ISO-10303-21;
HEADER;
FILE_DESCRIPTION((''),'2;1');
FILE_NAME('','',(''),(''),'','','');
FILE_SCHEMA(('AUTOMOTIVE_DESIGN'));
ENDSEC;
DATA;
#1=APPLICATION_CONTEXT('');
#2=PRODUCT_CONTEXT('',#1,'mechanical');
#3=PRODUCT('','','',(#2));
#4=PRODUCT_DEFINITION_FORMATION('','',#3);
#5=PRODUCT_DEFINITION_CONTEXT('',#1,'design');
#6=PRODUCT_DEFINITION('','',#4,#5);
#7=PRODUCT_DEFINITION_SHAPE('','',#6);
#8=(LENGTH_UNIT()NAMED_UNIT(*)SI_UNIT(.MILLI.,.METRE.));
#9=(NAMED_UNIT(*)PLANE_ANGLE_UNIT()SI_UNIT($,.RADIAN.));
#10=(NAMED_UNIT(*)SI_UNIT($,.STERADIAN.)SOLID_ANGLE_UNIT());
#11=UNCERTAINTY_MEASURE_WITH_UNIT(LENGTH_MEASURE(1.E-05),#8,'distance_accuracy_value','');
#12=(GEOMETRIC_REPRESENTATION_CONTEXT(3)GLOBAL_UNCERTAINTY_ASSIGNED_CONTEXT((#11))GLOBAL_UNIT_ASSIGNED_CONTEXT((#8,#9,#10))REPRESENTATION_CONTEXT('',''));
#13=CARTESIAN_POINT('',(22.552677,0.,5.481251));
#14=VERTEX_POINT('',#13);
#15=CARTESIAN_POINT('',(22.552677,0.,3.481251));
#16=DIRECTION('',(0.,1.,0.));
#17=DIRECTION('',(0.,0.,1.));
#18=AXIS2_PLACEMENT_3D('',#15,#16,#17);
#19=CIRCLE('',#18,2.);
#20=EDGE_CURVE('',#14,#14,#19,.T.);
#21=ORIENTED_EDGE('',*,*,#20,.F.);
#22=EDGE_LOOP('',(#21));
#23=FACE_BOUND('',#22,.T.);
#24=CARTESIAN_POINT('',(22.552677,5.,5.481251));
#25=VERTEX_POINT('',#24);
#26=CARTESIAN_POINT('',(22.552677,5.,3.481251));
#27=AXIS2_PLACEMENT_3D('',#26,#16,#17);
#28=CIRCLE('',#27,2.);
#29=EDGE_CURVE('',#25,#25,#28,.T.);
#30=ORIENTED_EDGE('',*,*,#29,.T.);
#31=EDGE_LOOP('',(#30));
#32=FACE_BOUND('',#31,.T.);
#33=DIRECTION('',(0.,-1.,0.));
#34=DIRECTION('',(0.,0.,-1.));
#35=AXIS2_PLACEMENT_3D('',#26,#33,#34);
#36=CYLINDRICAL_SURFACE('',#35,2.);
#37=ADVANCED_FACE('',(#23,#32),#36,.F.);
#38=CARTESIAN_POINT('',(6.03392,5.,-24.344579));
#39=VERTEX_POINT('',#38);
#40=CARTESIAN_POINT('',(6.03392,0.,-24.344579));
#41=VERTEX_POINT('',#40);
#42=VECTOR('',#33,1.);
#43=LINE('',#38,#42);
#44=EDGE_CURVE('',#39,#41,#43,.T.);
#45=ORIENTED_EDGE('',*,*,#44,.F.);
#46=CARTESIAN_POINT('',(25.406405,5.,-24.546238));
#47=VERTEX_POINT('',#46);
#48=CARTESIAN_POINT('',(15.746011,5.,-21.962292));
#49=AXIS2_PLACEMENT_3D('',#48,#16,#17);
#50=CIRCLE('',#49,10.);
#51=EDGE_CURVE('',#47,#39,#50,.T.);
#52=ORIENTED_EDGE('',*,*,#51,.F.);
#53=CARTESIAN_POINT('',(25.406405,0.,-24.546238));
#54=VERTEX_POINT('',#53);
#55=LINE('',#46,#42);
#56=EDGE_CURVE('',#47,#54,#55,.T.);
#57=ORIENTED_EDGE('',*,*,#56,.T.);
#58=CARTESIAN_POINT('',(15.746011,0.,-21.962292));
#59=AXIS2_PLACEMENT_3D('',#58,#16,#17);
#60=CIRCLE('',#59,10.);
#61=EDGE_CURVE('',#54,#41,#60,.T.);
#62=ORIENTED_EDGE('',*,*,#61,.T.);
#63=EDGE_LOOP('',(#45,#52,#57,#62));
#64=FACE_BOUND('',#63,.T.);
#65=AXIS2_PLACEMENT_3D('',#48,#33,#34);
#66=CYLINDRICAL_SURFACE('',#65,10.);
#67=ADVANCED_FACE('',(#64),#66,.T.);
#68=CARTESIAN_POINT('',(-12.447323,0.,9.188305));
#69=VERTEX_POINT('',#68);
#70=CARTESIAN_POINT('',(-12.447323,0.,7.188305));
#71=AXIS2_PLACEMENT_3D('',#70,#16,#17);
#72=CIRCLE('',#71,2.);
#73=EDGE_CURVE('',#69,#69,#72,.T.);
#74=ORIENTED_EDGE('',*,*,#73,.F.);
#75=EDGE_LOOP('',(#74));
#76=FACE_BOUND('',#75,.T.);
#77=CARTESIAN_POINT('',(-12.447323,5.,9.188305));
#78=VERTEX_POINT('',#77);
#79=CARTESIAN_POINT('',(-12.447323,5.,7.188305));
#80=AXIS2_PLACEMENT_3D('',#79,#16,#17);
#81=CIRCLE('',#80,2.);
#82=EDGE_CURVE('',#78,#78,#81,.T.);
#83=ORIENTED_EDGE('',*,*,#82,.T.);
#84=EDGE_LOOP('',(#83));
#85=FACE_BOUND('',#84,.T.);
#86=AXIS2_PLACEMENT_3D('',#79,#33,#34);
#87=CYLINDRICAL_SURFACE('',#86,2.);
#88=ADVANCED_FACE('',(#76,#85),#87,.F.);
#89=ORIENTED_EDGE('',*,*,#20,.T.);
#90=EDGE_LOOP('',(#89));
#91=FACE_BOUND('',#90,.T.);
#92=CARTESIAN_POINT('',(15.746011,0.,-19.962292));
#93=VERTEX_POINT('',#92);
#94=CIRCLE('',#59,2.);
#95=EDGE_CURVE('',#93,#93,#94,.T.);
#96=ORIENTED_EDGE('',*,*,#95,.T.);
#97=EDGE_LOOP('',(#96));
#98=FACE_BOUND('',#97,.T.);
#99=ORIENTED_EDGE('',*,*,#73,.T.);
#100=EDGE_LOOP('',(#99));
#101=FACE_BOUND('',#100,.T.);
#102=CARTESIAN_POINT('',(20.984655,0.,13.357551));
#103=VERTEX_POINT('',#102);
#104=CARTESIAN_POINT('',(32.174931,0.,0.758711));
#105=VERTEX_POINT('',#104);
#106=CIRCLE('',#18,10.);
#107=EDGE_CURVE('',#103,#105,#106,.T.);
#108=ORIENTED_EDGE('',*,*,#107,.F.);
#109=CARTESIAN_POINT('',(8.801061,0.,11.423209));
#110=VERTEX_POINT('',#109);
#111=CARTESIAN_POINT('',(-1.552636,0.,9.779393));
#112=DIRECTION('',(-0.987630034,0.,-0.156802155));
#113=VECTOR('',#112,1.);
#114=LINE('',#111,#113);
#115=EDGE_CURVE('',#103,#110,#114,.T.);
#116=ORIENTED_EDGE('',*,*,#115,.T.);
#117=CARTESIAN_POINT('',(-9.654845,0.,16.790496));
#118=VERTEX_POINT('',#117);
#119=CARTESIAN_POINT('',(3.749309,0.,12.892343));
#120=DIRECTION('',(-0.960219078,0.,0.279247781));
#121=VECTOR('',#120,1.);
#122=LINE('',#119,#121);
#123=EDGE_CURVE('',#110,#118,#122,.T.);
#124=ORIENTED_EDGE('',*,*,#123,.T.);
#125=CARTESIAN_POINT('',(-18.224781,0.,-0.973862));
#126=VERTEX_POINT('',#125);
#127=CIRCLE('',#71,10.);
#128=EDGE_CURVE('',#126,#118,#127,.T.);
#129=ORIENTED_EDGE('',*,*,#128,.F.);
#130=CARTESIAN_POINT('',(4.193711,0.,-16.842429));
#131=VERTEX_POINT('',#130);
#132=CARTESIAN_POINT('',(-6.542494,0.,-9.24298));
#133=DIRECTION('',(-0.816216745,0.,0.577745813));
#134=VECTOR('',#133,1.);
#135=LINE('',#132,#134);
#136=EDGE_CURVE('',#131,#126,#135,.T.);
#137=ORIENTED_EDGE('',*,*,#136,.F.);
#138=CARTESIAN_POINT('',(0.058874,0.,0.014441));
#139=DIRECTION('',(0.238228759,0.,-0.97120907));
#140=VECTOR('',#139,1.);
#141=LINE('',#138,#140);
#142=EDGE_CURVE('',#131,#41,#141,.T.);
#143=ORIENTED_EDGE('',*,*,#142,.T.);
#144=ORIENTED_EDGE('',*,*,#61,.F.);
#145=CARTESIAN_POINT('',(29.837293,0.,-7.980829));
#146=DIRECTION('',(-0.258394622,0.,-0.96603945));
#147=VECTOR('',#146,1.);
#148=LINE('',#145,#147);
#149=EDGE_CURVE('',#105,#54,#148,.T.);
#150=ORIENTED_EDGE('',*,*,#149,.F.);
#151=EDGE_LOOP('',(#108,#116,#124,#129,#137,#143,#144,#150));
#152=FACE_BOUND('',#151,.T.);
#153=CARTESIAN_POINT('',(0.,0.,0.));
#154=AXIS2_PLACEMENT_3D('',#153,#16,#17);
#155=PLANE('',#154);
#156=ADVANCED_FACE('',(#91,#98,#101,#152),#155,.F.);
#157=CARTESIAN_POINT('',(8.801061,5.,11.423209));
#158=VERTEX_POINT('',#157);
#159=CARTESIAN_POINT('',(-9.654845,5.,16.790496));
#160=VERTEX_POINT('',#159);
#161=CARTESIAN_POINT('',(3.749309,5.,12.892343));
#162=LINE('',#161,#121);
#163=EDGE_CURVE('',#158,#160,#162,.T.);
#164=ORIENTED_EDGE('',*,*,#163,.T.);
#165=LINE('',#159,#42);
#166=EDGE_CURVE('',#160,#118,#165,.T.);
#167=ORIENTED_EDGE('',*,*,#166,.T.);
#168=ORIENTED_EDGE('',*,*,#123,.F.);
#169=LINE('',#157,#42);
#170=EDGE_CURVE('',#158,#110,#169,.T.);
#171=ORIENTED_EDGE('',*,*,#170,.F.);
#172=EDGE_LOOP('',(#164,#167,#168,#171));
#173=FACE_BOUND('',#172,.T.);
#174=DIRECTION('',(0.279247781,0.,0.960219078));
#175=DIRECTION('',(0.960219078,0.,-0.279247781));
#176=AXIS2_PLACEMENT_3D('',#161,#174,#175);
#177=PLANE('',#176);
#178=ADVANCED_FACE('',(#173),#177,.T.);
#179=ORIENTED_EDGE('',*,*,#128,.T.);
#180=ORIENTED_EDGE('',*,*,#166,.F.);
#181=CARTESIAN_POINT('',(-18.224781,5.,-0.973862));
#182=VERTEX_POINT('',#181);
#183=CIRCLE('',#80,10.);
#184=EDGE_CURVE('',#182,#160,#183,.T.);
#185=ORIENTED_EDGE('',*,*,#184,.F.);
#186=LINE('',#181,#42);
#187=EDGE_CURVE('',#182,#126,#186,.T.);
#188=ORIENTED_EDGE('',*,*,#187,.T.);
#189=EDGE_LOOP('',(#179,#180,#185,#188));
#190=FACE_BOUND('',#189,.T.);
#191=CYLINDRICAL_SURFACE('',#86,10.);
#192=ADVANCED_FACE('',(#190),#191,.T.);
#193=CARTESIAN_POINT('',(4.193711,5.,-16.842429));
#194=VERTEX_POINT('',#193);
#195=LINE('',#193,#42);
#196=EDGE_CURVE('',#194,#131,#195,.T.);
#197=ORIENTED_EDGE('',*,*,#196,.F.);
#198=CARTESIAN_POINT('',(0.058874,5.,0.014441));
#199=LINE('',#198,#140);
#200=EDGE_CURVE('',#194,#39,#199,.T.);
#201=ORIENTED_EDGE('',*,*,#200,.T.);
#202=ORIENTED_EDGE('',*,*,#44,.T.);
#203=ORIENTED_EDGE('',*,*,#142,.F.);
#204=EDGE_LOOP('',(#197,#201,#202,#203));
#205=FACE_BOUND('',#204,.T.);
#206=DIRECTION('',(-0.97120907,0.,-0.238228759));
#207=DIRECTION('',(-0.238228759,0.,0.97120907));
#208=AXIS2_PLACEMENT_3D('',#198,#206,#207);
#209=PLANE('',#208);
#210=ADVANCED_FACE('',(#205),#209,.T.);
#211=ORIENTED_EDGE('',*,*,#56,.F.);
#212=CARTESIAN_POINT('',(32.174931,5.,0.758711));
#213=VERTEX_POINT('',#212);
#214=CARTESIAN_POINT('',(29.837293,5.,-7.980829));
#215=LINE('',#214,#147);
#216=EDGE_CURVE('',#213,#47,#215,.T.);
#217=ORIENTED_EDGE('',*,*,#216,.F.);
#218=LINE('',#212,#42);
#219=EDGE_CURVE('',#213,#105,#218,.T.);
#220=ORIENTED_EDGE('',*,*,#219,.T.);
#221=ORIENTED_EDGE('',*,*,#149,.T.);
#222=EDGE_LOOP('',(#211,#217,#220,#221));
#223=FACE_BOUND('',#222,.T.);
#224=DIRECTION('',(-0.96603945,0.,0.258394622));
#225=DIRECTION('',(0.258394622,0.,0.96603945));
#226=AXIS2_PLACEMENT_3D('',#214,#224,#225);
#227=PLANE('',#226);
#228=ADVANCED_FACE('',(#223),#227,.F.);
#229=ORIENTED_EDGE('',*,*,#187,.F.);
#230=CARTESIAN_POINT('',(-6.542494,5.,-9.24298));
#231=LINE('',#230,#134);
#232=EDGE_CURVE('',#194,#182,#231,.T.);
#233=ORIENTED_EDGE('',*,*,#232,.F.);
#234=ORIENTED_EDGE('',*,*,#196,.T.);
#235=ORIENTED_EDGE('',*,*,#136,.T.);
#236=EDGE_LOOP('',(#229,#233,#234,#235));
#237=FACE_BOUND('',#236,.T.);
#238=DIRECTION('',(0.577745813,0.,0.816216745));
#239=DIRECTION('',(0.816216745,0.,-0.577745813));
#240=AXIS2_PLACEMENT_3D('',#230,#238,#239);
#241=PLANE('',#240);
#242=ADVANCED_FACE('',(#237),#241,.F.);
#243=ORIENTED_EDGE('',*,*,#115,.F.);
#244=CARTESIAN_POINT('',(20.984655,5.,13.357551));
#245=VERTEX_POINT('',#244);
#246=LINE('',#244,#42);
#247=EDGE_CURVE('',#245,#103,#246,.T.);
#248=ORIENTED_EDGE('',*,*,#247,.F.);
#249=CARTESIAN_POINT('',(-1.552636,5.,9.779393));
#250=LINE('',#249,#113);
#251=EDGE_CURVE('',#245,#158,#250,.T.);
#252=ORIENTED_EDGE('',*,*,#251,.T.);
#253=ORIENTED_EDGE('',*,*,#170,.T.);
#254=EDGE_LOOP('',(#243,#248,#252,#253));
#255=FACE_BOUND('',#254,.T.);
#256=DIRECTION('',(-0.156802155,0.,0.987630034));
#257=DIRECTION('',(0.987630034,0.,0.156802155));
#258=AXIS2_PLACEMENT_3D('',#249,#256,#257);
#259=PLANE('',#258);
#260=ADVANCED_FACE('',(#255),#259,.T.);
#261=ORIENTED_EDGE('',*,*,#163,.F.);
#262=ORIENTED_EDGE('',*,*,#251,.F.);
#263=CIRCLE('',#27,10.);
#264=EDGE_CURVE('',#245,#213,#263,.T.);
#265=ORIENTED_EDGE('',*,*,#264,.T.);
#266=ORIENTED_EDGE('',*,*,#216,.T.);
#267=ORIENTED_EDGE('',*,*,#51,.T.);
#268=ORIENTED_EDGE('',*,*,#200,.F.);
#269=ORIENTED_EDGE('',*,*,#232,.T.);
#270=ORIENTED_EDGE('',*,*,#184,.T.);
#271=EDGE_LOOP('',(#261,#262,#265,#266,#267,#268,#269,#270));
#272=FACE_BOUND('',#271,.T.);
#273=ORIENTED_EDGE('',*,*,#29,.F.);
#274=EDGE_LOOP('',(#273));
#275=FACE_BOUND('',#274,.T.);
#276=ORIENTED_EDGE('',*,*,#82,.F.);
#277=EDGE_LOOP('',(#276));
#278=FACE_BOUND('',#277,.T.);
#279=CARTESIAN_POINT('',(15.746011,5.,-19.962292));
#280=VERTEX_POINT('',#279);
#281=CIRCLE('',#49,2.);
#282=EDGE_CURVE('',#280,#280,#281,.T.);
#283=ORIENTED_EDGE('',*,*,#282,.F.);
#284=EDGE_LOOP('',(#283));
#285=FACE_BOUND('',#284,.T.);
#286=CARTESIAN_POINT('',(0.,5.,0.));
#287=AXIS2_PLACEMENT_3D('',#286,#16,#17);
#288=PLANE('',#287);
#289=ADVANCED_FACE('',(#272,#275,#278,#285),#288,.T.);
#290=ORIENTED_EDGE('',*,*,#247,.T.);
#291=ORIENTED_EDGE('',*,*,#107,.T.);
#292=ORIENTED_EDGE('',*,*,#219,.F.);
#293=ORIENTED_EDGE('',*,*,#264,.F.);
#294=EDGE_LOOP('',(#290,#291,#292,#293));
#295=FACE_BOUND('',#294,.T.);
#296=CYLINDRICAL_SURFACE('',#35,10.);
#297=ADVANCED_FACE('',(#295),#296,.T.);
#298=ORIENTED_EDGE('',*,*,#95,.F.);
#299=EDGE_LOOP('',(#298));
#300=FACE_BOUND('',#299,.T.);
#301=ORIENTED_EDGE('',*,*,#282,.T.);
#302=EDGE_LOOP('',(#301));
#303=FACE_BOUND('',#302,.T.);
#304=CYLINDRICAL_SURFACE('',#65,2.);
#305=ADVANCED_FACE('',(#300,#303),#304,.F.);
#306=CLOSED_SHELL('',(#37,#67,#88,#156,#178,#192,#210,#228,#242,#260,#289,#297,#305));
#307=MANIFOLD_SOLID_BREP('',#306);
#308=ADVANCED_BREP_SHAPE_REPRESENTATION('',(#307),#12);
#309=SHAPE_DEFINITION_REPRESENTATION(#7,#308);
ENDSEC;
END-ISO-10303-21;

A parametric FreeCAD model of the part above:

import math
import FreeCAD as App
import Part
import Sketcher

doc = App.newDocument("Part")
body = doc.addObject("PartDesign::Body", "Body")

# Sketch on XZ plane
sketch1 = doc.addObject("Sketcher::SketchObject", "Sketch")
body.addObject(sketch1)
sketch1.AttachmentSupport = (doc.XZ_Plane, [""])
sketch1.MapMode = "FlatFace"
sketch1.addGeometry([
    Part.LineSegment(App.Vector(32.174931, 0.758711, 0), App.Vector(25.406405, -24.546238, 0)),  # 0
    Part.ArcOfCircle(Part.Circle(App.Vector(15.746011, -21.962292, 0), App.Vector(0, 0, 1), 10), math.radians(-166.217976), math.radians(-14.974826)),  # 1
    Part.LineSegment(App.Vector(6.03392, -24.344579, 0), App.Vector(4.193711, -16.842429, 0)),  # 2
    Part.LineSegment(App.Vector(4.193711, -16.842429, 0), App.Vector(-18.224781, -0.973862, 0)),  # 3
    Part.ArcOfCircle(Part.Circle(App.Vector(-12.447323, 7.188305, 0), App.Vector(0, 0, 1), 10), math.radians(73.784685), math.radians(234.707849)),  # 4
    Part.LineSegment(App.Vector(-9.654845, 16.790496, 0), App.Vector(8.801061, 11.423209, 0)),  # 5
    Part.LineSegment(App.Vector(8.801061, 11.423209, 0), App.Vector(20.984655, 13.357551, 0)),  # 6
    Part.ArcOfCircle(Part.Circle(App.Vector(22.552677, 3.481251, 0), App.Vector(0, 0, 1), 10), math.radians(-15.798436), math.radians(99.02133)),  # 7
    Part.Circle(App.Vector(-12.447323, 7.188305, 0), App.Vector(0, 0, 1), 2),  # 8
    Part.Circle(App.Vector(22.552677, 3.481251, 0), App.Vector(0, 0, 1), 2),  # 9
    Part.Circle(App.Vector(15.746011, -21.962292, 0), App.Vector(0, 0, 1), 2),  # 10
], False)
sketch1.addConstraint([
    Sketcher.Constraint("Tangent", 0, 2, 1, 2),
    Sketcher.Constraint("Tangent", 1, 1, 2, 1),
    Sketcher.Constraint("Coincident", 2, 2, 3, 1),
    Sketcher.Constraint("Tangent", 3, 2, 4, 2),
    Sketcher.Constraint("Tangent", 4, 1, 5, 1),
    Sketcher.Constraint("Coincident", 5, 2, 6, 1),
    Sketcher.Constraint("Tangent", 6, 2, 7, 2),
    Sketcher.Constraint("Coincident", 7, 1, 0, 1),
    Sketcher.Constraint("Coincident", 8, 3, 4, 3),
    Sketcher.Constraint("Coincident", 9, 3, 7, 3),
    Sketcher.Constraint("Coincident", 10, 3, 1, 3),
    Sketcher.Constraint("Equal", 1, 4),
    Sketcher.Constraint("Equal", 4, 7),
    Sketcher.Constraint("Equal", 8, 9),
    Sketcher.Constraint("Equal", 9, 10),
    Sketcher.Constraint("Diameter", 8, 4.0),
    Sketcher.Constraint("Radius", 1, 10.0),
    Sketcher.Constraint("DistanceX", 4, 3, 7, 3, 35.0),
    Sketcher.Constraint("DistanceX", 2, 2, 10, 3, 11.5523),
    Sketcher.Constraint("DistanceX", 3, 2, 1, 1, 24.258702),
    Sketcher.Constraint("DistanceY", 7, 3, 6, 2, 9.8763),
    Sketcher.Constraint("DistanceX", 4, 1, 6, 2, 30.639501),
    Sketcher.Constraint("DistanceY", 7, 1, 5, 2, 10.664499),
    Sketcher.Constraint("Distance", 0, 26.194529),
    Sketcher.Constraint("DistanceX", -1, 1, 1, 3, 15.746011),
    Sketcher.Constraint("DistanceY", 1, 3, -1, 1, 21.962292),
    Sketcher.Constraint("DistanceY", -1, 1, 7, 3, 3.481251),
    Sketcher.Constraint("DistanceX", -1, 1, 1, 1, 6.03392),
])
pad1 = doc.addObject("PartDesign::Pad", "Pad")
body.addObject(pad1)
pad1.Profile = sketch1
pad1.Length = 5
pad1.Reversed = True

doc.recompute()
